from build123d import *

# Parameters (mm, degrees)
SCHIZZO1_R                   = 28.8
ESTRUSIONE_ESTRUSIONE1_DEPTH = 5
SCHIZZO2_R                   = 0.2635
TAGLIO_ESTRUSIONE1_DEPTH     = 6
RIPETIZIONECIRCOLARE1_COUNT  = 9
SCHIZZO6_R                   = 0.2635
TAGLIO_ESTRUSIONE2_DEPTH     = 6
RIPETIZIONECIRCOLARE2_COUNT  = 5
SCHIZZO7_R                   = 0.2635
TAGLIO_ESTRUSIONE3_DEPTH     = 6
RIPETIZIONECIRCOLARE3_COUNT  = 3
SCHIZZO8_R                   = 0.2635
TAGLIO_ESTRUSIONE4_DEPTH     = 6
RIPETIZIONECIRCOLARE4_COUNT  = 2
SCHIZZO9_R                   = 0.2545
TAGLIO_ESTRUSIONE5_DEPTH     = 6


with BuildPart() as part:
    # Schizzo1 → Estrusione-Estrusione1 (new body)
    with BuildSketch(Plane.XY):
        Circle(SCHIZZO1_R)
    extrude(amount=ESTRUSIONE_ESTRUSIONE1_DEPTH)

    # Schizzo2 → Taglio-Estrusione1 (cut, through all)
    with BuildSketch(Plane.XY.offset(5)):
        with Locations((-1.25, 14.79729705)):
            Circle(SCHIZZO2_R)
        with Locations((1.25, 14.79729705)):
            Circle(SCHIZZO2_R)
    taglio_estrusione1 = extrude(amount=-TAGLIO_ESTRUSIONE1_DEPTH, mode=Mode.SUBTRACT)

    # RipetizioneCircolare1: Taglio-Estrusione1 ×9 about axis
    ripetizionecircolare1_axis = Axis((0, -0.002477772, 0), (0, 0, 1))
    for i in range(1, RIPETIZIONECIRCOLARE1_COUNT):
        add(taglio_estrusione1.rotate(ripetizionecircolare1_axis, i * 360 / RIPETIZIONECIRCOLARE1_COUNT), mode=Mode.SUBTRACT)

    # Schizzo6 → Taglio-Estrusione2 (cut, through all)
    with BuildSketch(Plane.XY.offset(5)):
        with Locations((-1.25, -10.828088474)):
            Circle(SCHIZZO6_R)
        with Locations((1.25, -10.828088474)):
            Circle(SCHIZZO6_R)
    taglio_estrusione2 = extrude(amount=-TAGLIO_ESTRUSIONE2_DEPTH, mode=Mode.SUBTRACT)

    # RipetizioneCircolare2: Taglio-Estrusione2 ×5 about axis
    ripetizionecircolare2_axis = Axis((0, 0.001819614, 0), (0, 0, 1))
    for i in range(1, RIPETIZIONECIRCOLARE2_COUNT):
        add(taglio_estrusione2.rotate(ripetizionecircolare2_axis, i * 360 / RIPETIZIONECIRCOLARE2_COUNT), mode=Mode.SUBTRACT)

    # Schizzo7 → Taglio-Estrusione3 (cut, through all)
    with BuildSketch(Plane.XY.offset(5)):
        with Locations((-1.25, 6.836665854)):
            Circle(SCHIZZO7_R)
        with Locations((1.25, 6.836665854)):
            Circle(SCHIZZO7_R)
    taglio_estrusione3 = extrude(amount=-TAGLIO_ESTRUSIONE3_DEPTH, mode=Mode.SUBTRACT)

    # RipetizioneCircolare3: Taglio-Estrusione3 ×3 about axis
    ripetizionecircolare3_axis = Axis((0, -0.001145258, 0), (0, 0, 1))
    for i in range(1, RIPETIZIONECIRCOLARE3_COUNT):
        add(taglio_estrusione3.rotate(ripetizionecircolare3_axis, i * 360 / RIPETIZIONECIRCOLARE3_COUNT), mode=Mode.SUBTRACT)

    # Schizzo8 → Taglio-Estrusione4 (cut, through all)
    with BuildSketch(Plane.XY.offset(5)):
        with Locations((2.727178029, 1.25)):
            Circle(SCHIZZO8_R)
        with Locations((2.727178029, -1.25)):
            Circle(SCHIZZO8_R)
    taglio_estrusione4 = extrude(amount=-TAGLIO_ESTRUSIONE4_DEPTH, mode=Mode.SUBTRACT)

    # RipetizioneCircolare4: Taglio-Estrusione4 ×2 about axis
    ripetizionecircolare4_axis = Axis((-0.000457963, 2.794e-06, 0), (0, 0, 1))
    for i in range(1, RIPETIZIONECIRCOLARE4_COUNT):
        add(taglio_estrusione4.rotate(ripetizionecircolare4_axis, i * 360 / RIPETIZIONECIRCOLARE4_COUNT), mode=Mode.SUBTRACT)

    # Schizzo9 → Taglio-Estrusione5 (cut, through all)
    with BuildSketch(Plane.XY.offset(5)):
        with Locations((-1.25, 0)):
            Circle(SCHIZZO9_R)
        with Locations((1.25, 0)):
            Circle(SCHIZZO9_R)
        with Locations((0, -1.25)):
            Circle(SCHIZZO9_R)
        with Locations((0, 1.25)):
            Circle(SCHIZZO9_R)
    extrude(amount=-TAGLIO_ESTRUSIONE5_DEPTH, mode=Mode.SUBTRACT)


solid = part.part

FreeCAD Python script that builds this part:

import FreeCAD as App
import Part
import Sketcher

V = App.Vector
Q = App.Units.Quantity

doc = App.newDocument("Part")
body = doc.addObject("PartDesign::Body", "Body")

sketch1 = doc.addObject("Sketcher::SketchObject", "Sketch")
body.addObject(sketch1)
sketch1.AttachmentSupport = (doc.XY_Plane, [""])
sketch1.MapMode = "FlatFace"
sketch1.addGeometry(Part.Circle(V(0, 0, 0), V(0, 0, 1), 28.8), False)
sketch1.addConstraint(Sketcher.Constraint("Coincident", 0, 3, -1, 1))
sketch1.addConstraint(Sketcher.Constraint("Diameter", 0, Q("57.6 mm")))
pad1 = doc.addObject("PartDesign::Pad", "Pad")
body.addObject(pad1)
pad1.Profile = sketch1
pad1.Length = 5

sketch2 = doc.addObject("Sketcher::SketchObject", "Sketch001")
body.addObject(sketch2)
sketch2.AttachmentSupport = (doc.XY_Plane, [""])
sketch2.MapMode = "FlatFace"
sketch2.AttachmentOffset = App.Placement(V(0, 0, 5), App.Rotation())
sketch2.addGeometry(Part.Circle(V(-1.25, 14.797297, 0), V(0, 0, 1), 0.2635), False)
sketch2.addGeometry(Part.Circle(V(1.25, 14.797297, 0), V(0, 0, 1), 0.2635), False)
sketch2.addConstraint(Sketcher.Constraint("Equal", 0, 1))
sketch2.addConstraint(Sketcher.Constraint("Symmetric", 0, 3, 1, 3, -2))
sketch2.addConstraint(Sketcher.Constraint("Diameter", 0, Q("0.527 mm")))
sketch2.addConstraint(Sketcher.Constraint("DistanceX", 0, 3, 1, 3, Q("2.5 mm")))
sketch2.addConstraint(Sketcher.Constraint("DistanceY", -1, 1, 0, 3, Q("14.797297 mm")))
pocket1 = doc.addObject("PartDesign::Pocket", "Pocket")
body.addObject(pocket1)
pocket1.Profile = sketch2
pocket1.Type = "ThroughAll"
doc.recompute()

datumline = doc.addObject("PartDesign::Line", "DatumLine")
body.addObject(datumline)
datumline.Placement = App.Placement(V(0, -0.002478, 0), App.Rotation(V(0, 0, 1), V(0, 0, 1)))
polarpattern = doc.addObject("PartDesign::PolarPattern", "PolarPattern")
body.addObject(polarpattern)
polarpattern.Originals = [pocket1]
polarpattern.Axis = (datumline, [""])
polarpattern.Angle = 360
polarpattern.Occurrences = 9
body.Tip = polarpattern

sketch3 = doc.addObject("Sketcher::SketchObject", "Sketch002")
body.addObject(sketch3)
sketch3.AttachmentSupport = (doc.XY_Plane, [""])
sketch3.MapMode = "FlatFace"
sketch3.AttachmentOffset = App.Placement(V(0, 0, 5), App.Rotation())
sketch3.addGeometry(Part.Circle(V(-1.25, -10.828088, 0), V(0, 0, 1), 0.2635), False)
sketch3.addGeometry(Part.Circle(V(1.25, -10.828088, 0), V(0, 0, 1), 0.2635), False)
sketch3.addConstraint(Sketcher.Constraint("Equal", 0, 1))
sketch3.addConstraint(Sketcher.Constraint("Symmetric", 0, 3, 1, 3, -2))
sketch3.addConstraint(Sketcher.Constraint("Diameter", 0, Q("0.527 mm")))
sketch3.addConstraint(Sketcher.Constraint("DistanceX", 0, 3, 1, 3, Q("2.5 mm")))
sketch3.addConstraint(Sketcher.Constraint("DistanceY", 0, 3, -1, 1, Q("10.828088 mm")))
pocket2 = doc.addObject("PartDesign::Pocket", "Pocket001")
body.addObject(pocket2)
pocket2.Profile = sketch3
pocket2.Type = "ThroughAll"
doc.recompute()

datumline2 = doc.addObject("PartDesign::Line", "DatumLine001")
body.addObject(datumline2)
datumline2.Placement = App.Placement(V(0, 0.00182, 0), App.Rotation(V(0, 0, 1), V(0, 0, 1)))
polarpattern2 = doc.addObject("PartDesign::PolarPattern", "PolarPattern001")
body.addObject(polarpattern2)
polarpattern2.Originals = [pocket2]
polarpattern2.Axis = (datumline2, [""])
polarpattern2.Angle = 360
polarpattern2.Occurrences = 5
body.Tip = polarpattern2

sketch4 = doc.addObject("Sketcher::SketchObject", "Sketch003")
body.addObject(sketch4)
sketch4.AttachmentSupport = (doc.XY_Plane, [""])
sketch4.MapMode = "FlatFace"
sketch4.AttachmentOffset = App.Placement(V(0, 0, 5), App.Rotation())
sketch4.addGeometry(Part.Circle(V(-1.25, 6.836666, 0), V(0, 0, 1), 0.2635), False)
sketch4.addGeometry(Part.Circle(V(1.25, 6.836666, 0), V(0, 0, 1), 0.2635), False)
sketch4.addConstraint(Sketcher.Constraint("Equal", 0, 1))
sketch4.addConstraint(Sketcher.Constraint("Symmetric", 0, 3, 1, 3, -2))
sketch4.addConstraint(Sketcher.Constraint("Diameter", 0, Q("0.527 mm")))
sketch4.addConstraint(Sketcher.Constraint("DistanceX", 0, 3, 1, 3, Q("2.5 mm")))
sketch4.addConstraint(Sketcher.Constraint("DistanceY", -1, 1, 0, 3, Q("6.836666 mm")))
pocket3 = doc.addObject("PartDesign::Pocket", "Pocket002")
body.addObject(pocket3)
pocket3.Profile = sketch4
pocket3.Type = "ThroughAll"
doc.recompute()

datumline3 = doc.addObject("PartDesign::Line", "DatumLine002")
body.addObject(datumline3)
datumline3.Placement = App.Placement(V(0, -0.001145, 0), App.Rotation(V(0, 0, 1), V(0, 0, 1)))
polarpattern3 = doc.addObject("PartDesign::PolarPattern", "PolarPattern002")
body.addObject(polarpattern3)
polarpattern3.Originals = [pocket3]
polarpattern3.Axis = (datumline3, [""])
polarpattern3.Angle = 360
polarpattern3.Occurrences = 3
body.Tip = polarpattern3

sketch5 = doc.addObject("Sketcher::SketchObject", "Sketch004")
body.addObject(sketch5)
sketch5.AttachmentSupport = (doc.XY_Plane, [""])
sketch5.MapMode = "FlatFace"
sketch5.AttachmentOffset = App.Placement(V(0, 0, 5), App.Rotation())
sketch5.addGeometry(Part.Circle(V(2.727178, 1.25, 0), V(0, 0, 1), 0.2635), False)
sketch5.addGeometry(Part.Circle(V(2.727178, -1.25, 0), V(0, 0, 1), 0.2635), False)
sketch5.addConstraint(Sketcher.Constraint("Equal", 0, 1))
sketch5.addConstraint(Sketcher.Constraint("Symmetric", 0, 3, 1, 3, -1))
sketch5.addConstraint(Sketcher.Constraint("Diameter", 0, Q("0.527 mm")))
sketch5.addConstraint(Sketcher.Constraint("DistanceY", 1, 3, 0, 3, Q("2.5 mm")))
sketch5.addConstraint(Sketcher.Constraint("DistanceX", -1, 1, 0, 3, Q("2.727178 mm")))
pocket4 = doc.addObject("PartDesign::Pocket", "Pocket003")
body.addObject(pocket4)
pocket4.Profile = sketch5
pocket4.Type = "ThroughAll"
doc.recompute()

datumline4 = doc.addObject("PartDesign::Line", "DatumLine003")
body.addObject(datumline4)
datumline4.Placement = App.Placement(V(-0.000458, 0.000003, 0), App.Rotation(V(0, 0, 1), V(0, 0, 1)))
polarpattern4 = doc.addObject("PartDesign::PolarPattern", "PolarPattern003")
body.addObject(polarpattern4)
polarpattern4.Originals = [pocket4]
polarpattern4.Axis = (datumline4, [""])
polarpattern4.Angle = 360
polarpattern4.Occurrences = 2
body.Tip = polarpattern4

sketch6 = doc.addObject("Sketcher::SketchObject", "Sketch005")
body.addObject(sketch6)
sketch6.AttachmentSupport = (doc.XY_Plane, [""])
sketch6.MapMode = "FlatFace"
sketch6.AttachmentOffset = App.Placement(V(0, 0, 5), App.Rotation())
sketch6.addGeometry(Part.Circle(V(-1.25, 0, 0), V(0, 0, 1), 0.2545), False)
sketch6.addGeometry(Part.Circle(V(1.25, 0, 0), V(0, 0, 1), 0.2545), False)
sketch6.addGeometry(Part.Circle(V(0, -1.25, 0), V(0, 0, 1), 0.2545), False)
sketch6.addGeometry(Part.Circle(V(0, 1.25, 0), V(0, 0, 1), 0.2545), False)
sketch6.addConstraint(Sketcher.Constraint("Equal", 0, 1))
sketch6.addConstraint(Sketcher.Constraint("Equal", 1, 2))
sketch6.addConstraint(Sketcher.Constraint("Equal", 2, 3))
sketch6.addConstraint(Sketcher.Constraint("Symmetric", 0, 3, 1, 3, -1, 1))
sketch6.addConstraint(Sketcher.Constraint("Symmetric", 2, 3, 3, 3, -1, 1))
sketch6.addConstraint(Sketcher.Constraint("PointOnObject", 0, 3, -1))
sketch6.addConstraint(Sketcher.Constraint("PointOnObject", 2, 3, -2))
sketch6.addConstraint(Sketcher.Constraint("Diameter", 0, Q("0.509 mm")))
sketch6.addConstraint(Sketcher.Constraint("DistanceX", 0, 3, 1, 3, Q("2.5 mm")))
sketch6.addConstraint(Sketcher.Constraint("DistanceY", 2, 3, 3, 3, Q("2.5 mm")))
pocket5 = doc.addObject("PartDesign::Pocket", "Pocket004")
body.addObject(pocket5)
pocket5.Profile = sketch6
pocket5.Type = "ThroughAll"

doc.recompute()
